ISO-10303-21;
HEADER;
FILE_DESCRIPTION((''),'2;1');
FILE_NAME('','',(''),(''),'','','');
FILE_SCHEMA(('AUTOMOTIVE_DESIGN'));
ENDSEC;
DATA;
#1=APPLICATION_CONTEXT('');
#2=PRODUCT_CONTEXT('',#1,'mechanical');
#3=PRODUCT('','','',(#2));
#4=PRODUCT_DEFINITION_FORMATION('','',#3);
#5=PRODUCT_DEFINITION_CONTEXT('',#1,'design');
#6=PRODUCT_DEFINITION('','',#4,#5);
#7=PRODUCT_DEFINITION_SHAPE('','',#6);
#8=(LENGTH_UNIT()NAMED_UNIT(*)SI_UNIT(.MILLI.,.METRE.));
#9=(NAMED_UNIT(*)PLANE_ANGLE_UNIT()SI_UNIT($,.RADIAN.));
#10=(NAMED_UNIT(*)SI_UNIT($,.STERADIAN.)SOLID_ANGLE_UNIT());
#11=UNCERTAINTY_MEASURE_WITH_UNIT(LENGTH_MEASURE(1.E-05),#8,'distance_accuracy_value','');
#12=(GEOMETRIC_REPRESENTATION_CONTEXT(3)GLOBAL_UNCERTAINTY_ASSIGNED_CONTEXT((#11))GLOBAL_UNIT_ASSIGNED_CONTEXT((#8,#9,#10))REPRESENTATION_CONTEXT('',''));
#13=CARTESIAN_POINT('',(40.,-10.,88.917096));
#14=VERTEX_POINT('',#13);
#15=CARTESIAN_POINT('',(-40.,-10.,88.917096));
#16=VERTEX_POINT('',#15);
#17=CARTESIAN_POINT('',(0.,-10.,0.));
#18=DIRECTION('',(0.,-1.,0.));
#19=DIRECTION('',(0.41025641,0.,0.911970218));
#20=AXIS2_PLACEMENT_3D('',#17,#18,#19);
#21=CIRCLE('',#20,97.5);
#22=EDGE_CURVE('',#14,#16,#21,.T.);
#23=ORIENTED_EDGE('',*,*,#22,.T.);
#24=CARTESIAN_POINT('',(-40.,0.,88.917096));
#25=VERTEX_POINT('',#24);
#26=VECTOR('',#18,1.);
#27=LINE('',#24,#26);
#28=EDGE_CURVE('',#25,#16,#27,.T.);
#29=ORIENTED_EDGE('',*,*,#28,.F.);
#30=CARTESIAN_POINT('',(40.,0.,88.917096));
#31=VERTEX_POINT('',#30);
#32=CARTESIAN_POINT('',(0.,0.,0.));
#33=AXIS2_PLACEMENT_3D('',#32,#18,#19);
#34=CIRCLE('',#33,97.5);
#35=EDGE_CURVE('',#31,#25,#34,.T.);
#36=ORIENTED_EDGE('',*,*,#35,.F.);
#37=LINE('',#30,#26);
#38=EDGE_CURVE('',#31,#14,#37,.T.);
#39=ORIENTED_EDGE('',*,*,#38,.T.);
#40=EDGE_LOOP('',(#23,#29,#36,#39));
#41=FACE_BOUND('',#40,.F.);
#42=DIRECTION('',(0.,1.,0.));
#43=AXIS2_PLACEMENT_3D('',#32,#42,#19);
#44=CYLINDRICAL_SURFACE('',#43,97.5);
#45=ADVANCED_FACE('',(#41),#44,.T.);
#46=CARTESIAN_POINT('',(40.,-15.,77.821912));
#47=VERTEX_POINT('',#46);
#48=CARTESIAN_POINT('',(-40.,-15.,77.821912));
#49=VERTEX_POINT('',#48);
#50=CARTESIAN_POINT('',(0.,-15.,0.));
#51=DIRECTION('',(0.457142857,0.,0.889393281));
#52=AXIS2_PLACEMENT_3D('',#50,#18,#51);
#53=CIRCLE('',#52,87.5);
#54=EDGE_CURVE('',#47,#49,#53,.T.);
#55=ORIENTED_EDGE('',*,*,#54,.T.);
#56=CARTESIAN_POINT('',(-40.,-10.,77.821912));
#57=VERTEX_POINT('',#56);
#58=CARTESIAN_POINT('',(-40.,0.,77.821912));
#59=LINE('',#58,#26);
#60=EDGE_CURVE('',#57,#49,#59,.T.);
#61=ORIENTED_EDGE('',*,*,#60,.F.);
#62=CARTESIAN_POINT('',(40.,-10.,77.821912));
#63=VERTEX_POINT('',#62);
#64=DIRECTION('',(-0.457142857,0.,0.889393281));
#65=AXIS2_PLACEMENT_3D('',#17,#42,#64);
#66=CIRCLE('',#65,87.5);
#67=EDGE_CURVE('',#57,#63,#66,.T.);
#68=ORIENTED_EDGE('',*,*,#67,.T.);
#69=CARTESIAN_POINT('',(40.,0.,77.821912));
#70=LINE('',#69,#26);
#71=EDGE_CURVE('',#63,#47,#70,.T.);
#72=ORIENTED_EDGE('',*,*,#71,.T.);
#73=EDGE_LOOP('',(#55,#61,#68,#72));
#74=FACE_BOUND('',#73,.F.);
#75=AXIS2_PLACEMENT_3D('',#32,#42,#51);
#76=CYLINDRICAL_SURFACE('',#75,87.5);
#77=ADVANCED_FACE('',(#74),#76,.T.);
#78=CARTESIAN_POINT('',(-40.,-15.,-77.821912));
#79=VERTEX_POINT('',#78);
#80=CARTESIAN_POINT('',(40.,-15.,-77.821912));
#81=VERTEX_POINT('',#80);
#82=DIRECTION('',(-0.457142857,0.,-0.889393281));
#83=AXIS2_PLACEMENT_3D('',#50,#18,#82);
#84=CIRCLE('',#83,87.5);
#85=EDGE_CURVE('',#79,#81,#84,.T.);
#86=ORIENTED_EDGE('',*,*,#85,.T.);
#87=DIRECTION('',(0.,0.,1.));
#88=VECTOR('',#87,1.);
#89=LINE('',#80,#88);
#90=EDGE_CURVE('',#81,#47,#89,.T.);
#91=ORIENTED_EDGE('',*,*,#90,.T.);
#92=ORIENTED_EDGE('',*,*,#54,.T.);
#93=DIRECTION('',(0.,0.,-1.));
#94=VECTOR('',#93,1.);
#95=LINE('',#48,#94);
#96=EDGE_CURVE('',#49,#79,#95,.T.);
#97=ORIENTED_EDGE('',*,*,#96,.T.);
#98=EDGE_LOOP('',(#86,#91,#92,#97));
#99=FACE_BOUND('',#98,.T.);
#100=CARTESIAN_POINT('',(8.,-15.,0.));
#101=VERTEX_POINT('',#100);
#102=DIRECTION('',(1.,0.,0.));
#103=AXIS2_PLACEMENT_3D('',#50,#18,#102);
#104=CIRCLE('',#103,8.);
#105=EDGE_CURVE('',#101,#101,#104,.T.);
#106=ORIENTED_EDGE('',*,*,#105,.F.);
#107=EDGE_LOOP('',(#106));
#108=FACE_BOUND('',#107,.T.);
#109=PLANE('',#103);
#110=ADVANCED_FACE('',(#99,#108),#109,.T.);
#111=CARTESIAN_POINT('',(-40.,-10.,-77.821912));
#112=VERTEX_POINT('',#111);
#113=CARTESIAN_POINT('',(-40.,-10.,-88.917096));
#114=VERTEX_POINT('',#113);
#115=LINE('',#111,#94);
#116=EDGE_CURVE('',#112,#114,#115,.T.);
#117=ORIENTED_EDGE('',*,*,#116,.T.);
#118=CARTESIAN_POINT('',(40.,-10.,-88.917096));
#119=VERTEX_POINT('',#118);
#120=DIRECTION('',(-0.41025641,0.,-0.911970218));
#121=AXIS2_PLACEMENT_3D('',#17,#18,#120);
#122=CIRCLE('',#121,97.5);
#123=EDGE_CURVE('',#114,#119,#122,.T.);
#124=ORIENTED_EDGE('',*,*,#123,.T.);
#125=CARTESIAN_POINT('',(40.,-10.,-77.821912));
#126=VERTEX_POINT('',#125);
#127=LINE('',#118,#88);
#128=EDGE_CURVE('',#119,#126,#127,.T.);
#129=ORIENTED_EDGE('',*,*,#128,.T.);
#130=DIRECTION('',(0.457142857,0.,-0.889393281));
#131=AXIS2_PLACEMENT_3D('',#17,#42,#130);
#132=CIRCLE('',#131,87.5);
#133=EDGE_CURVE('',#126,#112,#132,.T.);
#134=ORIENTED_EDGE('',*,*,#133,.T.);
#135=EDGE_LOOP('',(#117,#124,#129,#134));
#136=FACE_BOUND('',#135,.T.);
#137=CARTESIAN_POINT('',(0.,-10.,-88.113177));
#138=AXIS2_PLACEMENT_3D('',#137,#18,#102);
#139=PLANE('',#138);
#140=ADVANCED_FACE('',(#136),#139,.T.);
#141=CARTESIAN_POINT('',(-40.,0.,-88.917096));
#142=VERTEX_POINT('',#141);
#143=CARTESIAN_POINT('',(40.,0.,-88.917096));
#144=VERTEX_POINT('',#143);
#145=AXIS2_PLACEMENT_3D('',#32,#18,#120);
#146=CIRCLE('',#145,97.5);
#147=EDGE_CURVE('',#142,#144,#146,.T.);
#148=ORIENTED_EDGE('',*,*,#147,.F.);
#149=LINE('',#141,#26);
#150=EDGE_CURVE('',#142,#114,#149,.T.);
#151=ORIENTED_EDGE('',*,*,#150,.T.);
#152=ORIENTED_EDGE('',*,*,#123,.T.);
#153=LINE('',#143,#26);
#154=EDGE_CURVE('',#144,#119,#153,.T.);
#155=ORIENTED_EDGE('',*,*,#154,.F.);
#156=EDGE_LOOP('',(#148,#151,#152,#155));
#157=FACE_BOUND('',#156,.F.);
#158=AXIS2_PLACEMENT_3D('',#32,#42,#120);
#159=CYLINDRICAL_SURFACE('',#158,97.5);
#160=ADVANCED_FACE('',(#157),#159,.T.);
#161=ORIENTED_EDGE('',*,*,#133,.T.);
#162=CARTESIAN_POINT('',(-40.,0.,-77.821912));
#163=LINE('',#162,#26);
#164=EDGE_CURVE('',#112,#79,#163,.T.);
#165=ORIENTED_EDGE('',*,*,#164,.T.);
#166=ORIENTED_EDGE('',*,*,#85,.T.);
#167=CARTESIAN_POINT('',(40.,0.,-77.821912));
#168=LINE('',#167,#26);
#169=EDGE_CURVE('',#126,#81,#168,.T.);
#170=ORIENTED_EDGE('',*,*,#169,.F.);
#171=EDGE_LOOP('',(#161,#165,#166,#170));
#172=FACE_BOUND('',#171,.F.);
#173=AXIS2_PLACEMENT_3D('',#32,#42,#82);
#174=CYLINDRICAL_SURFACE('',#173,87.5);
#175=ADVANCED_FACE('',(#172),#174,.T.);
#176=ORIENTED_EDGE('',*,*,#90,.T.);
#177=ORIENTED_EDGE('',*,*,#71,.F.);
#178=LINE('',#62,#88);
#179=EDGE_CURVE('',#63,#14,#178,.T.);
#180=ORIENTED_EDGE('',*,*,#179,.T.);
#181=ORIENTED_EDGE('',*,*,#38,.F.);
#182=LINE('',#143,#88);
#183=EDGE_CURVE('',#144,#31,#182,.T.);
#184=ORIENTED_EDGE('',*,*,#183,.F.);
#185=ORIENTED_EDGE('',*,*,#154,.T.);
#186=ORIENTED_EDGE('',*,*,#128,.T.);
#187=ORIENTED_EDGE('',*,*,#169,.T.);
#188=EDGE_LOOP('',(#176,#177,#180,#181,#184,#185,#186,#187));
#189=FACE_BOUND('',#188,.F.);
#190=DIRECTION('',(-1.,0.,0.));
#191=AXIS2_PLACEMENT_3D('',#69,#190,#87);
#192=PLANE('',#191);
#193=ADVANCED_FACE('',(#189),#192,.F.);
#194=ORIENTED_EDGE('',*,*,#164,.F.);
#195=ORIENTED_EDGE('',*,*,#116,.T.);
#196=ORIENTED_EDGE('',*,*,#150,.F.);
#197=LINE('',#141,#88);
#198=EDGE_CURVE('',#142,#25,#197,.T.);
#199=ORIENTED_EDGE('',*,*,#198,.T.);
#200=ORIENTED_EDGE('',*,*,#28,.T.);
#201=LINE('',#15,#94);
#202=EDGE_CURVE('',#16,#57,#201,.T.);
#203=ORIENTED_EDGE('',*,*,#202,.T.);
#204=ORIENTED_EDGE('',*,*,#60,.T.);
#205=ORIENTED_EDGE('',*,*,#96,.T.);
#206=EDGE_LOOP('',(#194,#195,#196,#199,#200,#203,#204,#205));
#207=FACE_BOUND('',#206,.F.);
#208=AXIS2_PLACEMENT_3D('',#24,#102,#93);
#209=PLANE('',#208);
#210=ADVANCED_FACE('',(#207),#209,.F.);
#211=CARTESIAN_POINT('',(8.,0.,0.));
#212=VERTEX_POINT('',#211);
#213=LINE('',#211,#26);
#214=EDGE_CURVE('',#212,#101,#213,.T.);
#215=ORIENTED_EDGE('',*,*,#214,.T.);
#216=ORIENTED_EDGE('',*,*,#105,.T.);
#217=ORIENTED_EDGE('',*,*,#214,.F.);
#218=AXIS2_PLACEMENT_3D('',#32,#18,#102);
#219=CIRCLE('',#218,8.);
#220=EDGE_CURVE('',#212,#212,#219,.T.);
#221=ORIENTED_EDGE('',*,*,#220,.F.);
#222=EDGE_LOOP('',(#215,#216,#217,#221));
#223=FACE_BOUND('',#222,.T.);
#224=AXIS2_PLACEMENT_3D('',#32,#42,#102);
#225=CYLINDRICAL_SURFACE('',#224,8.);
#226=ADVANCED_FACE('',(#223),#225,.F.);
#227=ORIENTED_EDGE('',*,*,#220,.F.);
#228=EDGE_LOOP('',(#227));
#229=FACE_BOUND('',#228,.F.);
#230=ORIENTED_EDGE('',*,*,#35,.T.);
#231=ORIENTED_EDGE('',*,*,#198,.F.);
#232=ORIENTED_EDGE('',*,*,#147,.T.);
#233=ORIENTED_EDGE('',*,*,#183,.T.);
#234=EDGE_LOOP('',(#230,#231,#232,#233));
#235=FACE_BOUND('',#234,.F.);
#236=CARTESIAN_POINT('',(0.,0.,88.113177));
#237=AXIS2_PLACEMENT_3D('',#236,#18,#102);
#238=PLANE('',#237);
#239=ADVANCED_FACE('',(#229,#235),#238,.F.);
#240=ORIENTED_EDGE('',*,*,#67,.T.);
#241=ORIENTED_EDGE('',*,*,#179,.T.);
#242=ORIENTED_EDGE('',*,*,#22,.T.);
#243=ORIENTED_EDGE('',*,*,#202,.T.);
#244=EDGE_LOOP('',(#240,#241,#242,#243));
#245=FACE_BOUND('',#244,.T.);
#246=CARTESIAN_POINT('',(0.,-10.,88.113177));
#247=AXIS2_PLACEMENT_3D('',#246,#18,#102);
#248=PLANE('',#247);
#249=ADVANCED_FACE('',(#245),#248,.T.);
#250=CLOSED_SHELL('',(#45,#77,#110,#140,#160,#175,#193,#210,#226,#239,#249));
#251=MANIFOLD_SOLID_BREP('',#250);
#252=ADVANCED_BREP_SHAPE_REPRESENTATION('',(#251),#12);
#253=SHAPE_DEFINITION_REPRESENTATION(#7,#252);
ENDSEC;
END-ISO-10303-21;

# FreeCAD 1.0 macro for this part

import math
import FreeCAD as App
import Part
import Sketcher

V = App.Vector

doc = App.newDocument("Part")
body = doc.addObject("PartDesign::Body", "Body")

# Sketch on XZ plane
sketch1 = body.newObject("Sketcher::SketchObject", "Sketch")
sketch1.AttachmentSupport = (doc.getObject("XZ_Plane"), [""])
sketch1.MapMode = "FlatFace"
sketch1.addGeometry(Part.LineSegment(V(40, -78, 0), V(40, 78, 0)), False)
sketch1.addGeometry(Part.ArcOfCircle(Part.Circle(V(0, 0, 0), V(0, 0, 1), 88), math.radians(63), math.radians(117)), False)
sketch1.addGeometry(Part.LineSegment(V(-40, 78, 0), V(-40, -78, 0)), False)
sketch1.addGeometry(Part.ArcOfCircle(Part.Circle(V(0, 0, 0), V(0, 0, 1), 88), math.radians(-117), math.radians(-63)), False)
sketch1.addGeometry(Part.Circle(V(0, 0, 0), V(0, 0, 1), 8), False)
sketch1.addConstraint(Sketcher.Constraint("Coincident", 0, 2, 1, 1))
sketch1.addConstraint(Sketcher.Constraint("Coincident", 1, 2, 2, 1))
sketch1.addConstraint(Sketcher.Constraint("Coincident", 2, 2, 3, 1))
sketch1.addConstraint(Sketcher.Constraint("Coincident", 3, 2, 0, 1))
sketch1.addConstraint(Sketcher.Constraint("Vertical", 0))
sketch1.addConstraint(Sketcher.Constraint("Vertical", 2))
sketch1.addConstraint(Sketcher.Constraint("Coincident", 1, 3, -1, 1))
sketch1.addConstraint(Sketcher.Constraint("Coincident", 3, 3, -1, 1))
sketch1.addConstraint(Sketcher.Constraint("Coincident", 4, 3, -1, 1))
sketch1.addConstraint(Sketcher.Constraint("Equal", 1, 3))
sketch1.addConstraint(Sketcher.Constraint("Horizontal", 0, 2, 1, 2))
sketch1.addConstraint(Sketcher.Constraint("Diameter", 4, 16.0))
sketch1.addConstraint(Sketcher.Constraint("Radius", 1, 87.5))
sketch1.addConstraint(Sketcher.Constraint("DistanceX", -1, 1, 0, 2, 40.0))
pad1 = body.newObject("PartDesign::Pad", "Pad")
pad1.Profile = sketch1
pad1.Length = 15

# Sketch on XZ plane
sketch2 = body.newObject("Sketcher::SketchObject", "Sketch001")
sketch2.AttachmentSupport = (doc.getObject("XZ_Plane"), [""])
sketch2.MapMode = "FlatFace"
sketch2.addGeometry(Part.ArcOfCircle(Part.Circle(V(0, 0, 0), V(0, 0, 1), 88), math.radians(63), math.radians(117)), False)
sketch2.addGeometry(Part.LineSegment(V(40, 78, 0), V(40, 89, 0)), False)
sketch2.addGeometry(Part.ArcOfCircle(Part.Circle(V(0, 0, 0), V(0, 0, 1), 98), math.radians(66), math.radians(114)), False)
sketch2.addGeometry(Part.LineSegment(V(-40, 89, 0), V(-40, 78, 0)), False)
sketch2.addGeometry(Part.LineSegment(V(40, -89, 0), V(40, -78, 0)), False)
sketch2.addGeometry(Part.ArcOfCircle(Part.Circle(V(0, 0, 0), V(0, 0, 1), 88), math.radians(-117), math.radians(-63)), False)
sketch2.addGeometry(Part.LineSegment(V(-40, -78, 0), V(-40, -89, 0)), False)
sketch2.addGeometry(Part.ArcOfCircle(Part.Circle(V(0, 0, 0), V(0, 0, 1), 98), math.radians(-114), math.radians(-66)), False)
sketch2.addConstraint(Sketcher.Constraint("Coincident", 0, 1, 1, 1))
sketch2.addConstraint(Sketcher.Constraint("Coincident", 1, 2, 2, 1))
sketch2.addConstraint(Sketcher.Constraint("Coincident", 2, 2, 3, 1))
sketch2.addConstraint(Sketcher.Constraint("Coincident", 3, 2, 0, 2))
sketch2.addConstraint(Sketcher.Constraint("Coincident", 4, 2, 5, 2))
sketch2.addConstraint(Sketcher.Constraint("Coincident", 5, 1, 6, 1))
sketch2.addConstraint(Sketcher.Constraint("Coincident", 6, 2, 7, 1))
sketch2.addConstraint(Sketcher.Constraint("Coincident", 7, 2, 4, 1))
sketch2.addConstraint(Sketcher.Constraint("Vertical", 1))
sketch2.addConstraint(Sketcher.Constraint("Vertical", 3))
sketch2.addConstraint(Sketcher.Constraint("Vertical", 4))
sketch2.addConstraint(Sketcher.Constraint("Vertical", 6))
sketch2.addConstraint(Sketcher.Constraint("Coincident", 0, 3, -1, 1))
sketch2.addConstraint(Sketcher.Constraint("Coincident", 2, 3, -1, 1))
sketch2.addConstraint(Sketcher.Constraint("Coincident", 5, 3, -1, 1))
sketch2.addConstraint(Sketcher.Constraint("Coincident", 7, 3, -1, 1))
sketch2.addConstraint(Sketcher.Constraint("Equal", 0, 5))
sketch2.addConstraint(Sketcher.Constraint("Equal", 2, 7))
sketch2.addConstraint(Sketcher.Constraint("Horizontal", 1, 2, 2, 2))
sketch2.addConstraint(Sketcher.Constraint("Horizontal", 4, 2, 5, 1))
sketch2.addConstraint(Sketcher.Constraint("Vertical", 1, 2, 4, 2))
sketch2.addConstraint(Sketcher.Constraint("Radius", 0, 87.5))
sketch2.addConstraint(Sketcher.Constraint("Radius", 2, 97.5))
sketch2.addConstraint(Sketcher.Constraint("DistanceX", -1, 1, 0, 1, 40.0))
pad2 = body.newObject("PartDesign::Pad", "Pad001")
pad2.Profile = sketch2
pad2.Length = 10

doc.recompute()
